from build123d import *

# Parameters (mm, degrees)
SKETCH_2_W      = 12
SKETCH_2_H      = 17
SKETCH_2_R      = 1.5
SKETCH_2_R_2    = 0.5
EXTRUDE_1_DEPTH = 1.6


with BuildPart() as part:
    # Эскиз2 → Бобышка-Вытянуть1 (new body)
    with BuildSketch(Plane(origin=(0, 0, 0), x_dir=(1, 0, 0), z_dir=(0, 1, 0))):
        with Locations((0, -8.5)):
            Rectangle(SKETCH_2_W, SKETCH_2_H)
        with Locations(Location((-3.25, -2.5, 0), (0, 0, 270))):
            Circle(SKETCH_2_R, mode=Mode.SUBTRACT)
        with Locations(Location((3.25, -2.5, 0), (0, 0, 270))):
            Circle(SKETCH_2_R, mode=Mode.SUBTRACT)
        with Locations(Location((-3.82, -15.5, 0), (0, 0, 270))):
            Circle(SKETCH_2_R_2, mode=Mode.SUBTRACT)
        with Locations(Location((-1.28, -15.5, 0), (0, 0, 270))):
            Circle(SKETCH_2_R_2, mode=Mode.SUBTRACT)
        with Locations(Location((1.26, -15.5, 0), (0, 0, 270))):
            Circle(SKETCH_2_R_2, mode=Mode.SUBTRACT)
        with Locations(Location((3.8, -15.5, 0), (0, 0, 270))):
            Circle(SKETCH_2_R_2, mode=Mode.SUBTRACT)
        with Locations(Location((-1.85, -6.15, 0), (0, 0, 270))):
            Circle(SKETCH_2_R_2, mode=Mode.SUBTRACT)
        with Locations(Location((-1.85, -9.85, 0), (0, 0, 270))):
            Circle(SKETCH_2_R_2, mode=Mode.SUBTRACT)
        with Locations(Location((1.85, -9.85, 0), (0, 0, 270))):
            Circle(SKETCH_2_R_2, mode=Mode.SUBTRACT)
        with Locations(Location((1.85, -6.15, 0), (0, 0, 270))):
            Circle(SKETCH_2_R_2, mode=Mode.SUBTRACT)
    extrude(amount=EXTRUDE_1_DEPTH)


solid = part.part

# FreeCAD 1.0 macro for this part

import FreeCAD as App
import Part
import Sketcher
from FreeCAD import Vector
Q = App.Units.Quantity


def add_polygon(sketch, points):
    """Adds a closed chain of lines whose ends are joined by coincident constraints."""
    first, n = sketch.GeometryCount, len(points)
    for a, b in zip(points, points[1:] + points[:1]):
        sketch.addGeometry(Part.LineSegment(App.Vector(*a, 0), App.Vector(*b, 0)), False)
    for i in range(n):
        sketch.addConstraint(Sketcher.Constraint("Coincident", first + i, 2, first + (i + 1) % n, 1))

doc = App.newDocument("Part")
body = doc.addObject("PartDesign::Body", "Body")

# Sketch on XZ plane
sketch1 = body.newObject("Sketcher::SketchObject", "Sketch")
sketch1.AttachmentSupport = (doc.getObject("XZ_Plane"), [""])
sketch1.MapMode = "FlatFace"
add_polygon(sketch1, [(-6, 0), (-6, 17), (6, 17), (6, 0)])  # lines 0-3
sketch1.addGeometry(Part.Circle(Vector(-3.82, 15.5, 0), Vector(0, 0, 1), 0.5), False)  # 4
sketch1.addGeometry(Part.Circle(Vector(-1.28, 15.5, 0), Vector(0, 0, 1), 0.5), False)  # 5
sketch1.addGeometry(Part.Circle(Vector(-1.85, 9.85, 0), Vector(0, 0, 1), 0.5), False)  # 6
sketch1.addGeometry(Part.Circle(Vector(1.26, 15.5, 0), Vector(0, 0, 1), 0.5), False)  # 7
sketch1.addGeometry(Part.Circle(Vector(3.8, 15.5, 0), Vector(0, 0, 1), 0.5), False)  # 8
sketch1.addGeometry(Part.Circle(Vector(1.85, 9.85, 0), Vector(0, 0, 1), 0.5), False)  # 9
sketch1.addGeometry(Part.Circle(Vector(-1.85, 6.15, 0), Vector(0, 0, 1), 0.5), False)  # 10
sketch1.addGeometry(Part.Circle(Vector(-3.25, 2.5, 0), Vector(0, 0, 1), 1.5), False)  # 11
sketch1.addGeometry(Part.Circle(Vector(1.85, 6.15, 0), Vector(0, 0, 1), 0.5), False)  # 12
sketch1.addGeometry(Part.Circle(Vector(3.25, 2.5, 0), Vector(0, 0, 1), 1.5), False)  # 13
sketch1.addConstraint([
    Sketcher.Constraint("Vertical", 0),
    Sketcher.Constraint("Horizontal", 1),
    Sketcher.Constraint("Vertical", 2),
    Sketcher.Constraint("Horizontal", 3),
    Sketcher.Constraint("Equal", 4, 5),
    Sketcher.Constraint("Equal", 5, 6),
    Sketcher.Constraint("Equal", 6, 7),
    Sketcher.Constraint("Equal", 7, 8),
    Sketcher.Constraint("Equal", 8, 9),
    Sketcher.Constraint("Equal", 9, 10),
    Sketcher.Constraint("Equal", 10, 12),
    Sketcher.Constraint("Equal", 11, 13),
    Sketcher.Constraint("Symmetric", 2, 2, 3, 2, -1, 1),
    Sketcher.Constraint("Symmetric", 6, 3, 9, 3, -2),
    Sketcher.Constraint("Symmetric", 10, 3, 12, 3, -2),
    Sketcher.Constraint("Symmetric", 11, 3, 13, 3, -2),
    Sketcher.Constraint("Horizontal", 4, 3, 5, 3),
    Sketcher.Constraint("Horizontal", 5, 3, 7, 3),
    Sketcher.Constraint("Horizontal", 7, 3, 8, 3),
    Sketcher.Constraint("Vertical", 6, 3, 10, 3),
    Sketcher.Constraint("Diameter", 4, Q("1 mm")),
    Sketcher.Constraint("Diameter", 11, Q("3 mm")),
    Sketcher.Constraint("DistanceX", 1, 1, 1, 2, Q("12 mm")),
    Sketcher.Constraint("DistanceY", 0, 1, 0, 2, Q("17 mm")),
    Sketcher.Constraint("DistanceY", 11, 3, 4, 3, Q("13 mm")),
    Sketcher.Constraint("DistanceY", -1, 1, 4, 3, Q("15.5 mm")),
    Sketcher.Constraint("DistanceX", -1, 1, 8, 3, Q("3.8 mm")),
    Sketcher.Constraint("DistanceX", 6, 3, 9, 3, Q("3.7 mm")),
    Sketcher.Constraint("DistanceY", 10, 3, 6, 3, Q("3.7 mm")),
    Sketcher.Constraint("DistanceX", 11, 3, 10, 3, Q("1.4 mm")),
    Sketcher.Constraint("DistanceX", 4, 3, -1, 1, Q("3.82 mm")),
    Sketcher.Constraint("DistanceX", 5, 3, -1, 1, Q("1.28 mm")),
    Sketcher.Constraint("DistanceY", -1, 1, 6, 3, Q("9.85 mm")),
    Sketcher.Constraint("DistanceX", -1, 1, 7, 3, Q("1.26 mm")),
])
pad1 = body.newObject("PartDesign::Pad", "Pad")
pad1.Profile = sketch1
pad1.Length = 1.6
pad1.Reversed = True

doc.recompute()
